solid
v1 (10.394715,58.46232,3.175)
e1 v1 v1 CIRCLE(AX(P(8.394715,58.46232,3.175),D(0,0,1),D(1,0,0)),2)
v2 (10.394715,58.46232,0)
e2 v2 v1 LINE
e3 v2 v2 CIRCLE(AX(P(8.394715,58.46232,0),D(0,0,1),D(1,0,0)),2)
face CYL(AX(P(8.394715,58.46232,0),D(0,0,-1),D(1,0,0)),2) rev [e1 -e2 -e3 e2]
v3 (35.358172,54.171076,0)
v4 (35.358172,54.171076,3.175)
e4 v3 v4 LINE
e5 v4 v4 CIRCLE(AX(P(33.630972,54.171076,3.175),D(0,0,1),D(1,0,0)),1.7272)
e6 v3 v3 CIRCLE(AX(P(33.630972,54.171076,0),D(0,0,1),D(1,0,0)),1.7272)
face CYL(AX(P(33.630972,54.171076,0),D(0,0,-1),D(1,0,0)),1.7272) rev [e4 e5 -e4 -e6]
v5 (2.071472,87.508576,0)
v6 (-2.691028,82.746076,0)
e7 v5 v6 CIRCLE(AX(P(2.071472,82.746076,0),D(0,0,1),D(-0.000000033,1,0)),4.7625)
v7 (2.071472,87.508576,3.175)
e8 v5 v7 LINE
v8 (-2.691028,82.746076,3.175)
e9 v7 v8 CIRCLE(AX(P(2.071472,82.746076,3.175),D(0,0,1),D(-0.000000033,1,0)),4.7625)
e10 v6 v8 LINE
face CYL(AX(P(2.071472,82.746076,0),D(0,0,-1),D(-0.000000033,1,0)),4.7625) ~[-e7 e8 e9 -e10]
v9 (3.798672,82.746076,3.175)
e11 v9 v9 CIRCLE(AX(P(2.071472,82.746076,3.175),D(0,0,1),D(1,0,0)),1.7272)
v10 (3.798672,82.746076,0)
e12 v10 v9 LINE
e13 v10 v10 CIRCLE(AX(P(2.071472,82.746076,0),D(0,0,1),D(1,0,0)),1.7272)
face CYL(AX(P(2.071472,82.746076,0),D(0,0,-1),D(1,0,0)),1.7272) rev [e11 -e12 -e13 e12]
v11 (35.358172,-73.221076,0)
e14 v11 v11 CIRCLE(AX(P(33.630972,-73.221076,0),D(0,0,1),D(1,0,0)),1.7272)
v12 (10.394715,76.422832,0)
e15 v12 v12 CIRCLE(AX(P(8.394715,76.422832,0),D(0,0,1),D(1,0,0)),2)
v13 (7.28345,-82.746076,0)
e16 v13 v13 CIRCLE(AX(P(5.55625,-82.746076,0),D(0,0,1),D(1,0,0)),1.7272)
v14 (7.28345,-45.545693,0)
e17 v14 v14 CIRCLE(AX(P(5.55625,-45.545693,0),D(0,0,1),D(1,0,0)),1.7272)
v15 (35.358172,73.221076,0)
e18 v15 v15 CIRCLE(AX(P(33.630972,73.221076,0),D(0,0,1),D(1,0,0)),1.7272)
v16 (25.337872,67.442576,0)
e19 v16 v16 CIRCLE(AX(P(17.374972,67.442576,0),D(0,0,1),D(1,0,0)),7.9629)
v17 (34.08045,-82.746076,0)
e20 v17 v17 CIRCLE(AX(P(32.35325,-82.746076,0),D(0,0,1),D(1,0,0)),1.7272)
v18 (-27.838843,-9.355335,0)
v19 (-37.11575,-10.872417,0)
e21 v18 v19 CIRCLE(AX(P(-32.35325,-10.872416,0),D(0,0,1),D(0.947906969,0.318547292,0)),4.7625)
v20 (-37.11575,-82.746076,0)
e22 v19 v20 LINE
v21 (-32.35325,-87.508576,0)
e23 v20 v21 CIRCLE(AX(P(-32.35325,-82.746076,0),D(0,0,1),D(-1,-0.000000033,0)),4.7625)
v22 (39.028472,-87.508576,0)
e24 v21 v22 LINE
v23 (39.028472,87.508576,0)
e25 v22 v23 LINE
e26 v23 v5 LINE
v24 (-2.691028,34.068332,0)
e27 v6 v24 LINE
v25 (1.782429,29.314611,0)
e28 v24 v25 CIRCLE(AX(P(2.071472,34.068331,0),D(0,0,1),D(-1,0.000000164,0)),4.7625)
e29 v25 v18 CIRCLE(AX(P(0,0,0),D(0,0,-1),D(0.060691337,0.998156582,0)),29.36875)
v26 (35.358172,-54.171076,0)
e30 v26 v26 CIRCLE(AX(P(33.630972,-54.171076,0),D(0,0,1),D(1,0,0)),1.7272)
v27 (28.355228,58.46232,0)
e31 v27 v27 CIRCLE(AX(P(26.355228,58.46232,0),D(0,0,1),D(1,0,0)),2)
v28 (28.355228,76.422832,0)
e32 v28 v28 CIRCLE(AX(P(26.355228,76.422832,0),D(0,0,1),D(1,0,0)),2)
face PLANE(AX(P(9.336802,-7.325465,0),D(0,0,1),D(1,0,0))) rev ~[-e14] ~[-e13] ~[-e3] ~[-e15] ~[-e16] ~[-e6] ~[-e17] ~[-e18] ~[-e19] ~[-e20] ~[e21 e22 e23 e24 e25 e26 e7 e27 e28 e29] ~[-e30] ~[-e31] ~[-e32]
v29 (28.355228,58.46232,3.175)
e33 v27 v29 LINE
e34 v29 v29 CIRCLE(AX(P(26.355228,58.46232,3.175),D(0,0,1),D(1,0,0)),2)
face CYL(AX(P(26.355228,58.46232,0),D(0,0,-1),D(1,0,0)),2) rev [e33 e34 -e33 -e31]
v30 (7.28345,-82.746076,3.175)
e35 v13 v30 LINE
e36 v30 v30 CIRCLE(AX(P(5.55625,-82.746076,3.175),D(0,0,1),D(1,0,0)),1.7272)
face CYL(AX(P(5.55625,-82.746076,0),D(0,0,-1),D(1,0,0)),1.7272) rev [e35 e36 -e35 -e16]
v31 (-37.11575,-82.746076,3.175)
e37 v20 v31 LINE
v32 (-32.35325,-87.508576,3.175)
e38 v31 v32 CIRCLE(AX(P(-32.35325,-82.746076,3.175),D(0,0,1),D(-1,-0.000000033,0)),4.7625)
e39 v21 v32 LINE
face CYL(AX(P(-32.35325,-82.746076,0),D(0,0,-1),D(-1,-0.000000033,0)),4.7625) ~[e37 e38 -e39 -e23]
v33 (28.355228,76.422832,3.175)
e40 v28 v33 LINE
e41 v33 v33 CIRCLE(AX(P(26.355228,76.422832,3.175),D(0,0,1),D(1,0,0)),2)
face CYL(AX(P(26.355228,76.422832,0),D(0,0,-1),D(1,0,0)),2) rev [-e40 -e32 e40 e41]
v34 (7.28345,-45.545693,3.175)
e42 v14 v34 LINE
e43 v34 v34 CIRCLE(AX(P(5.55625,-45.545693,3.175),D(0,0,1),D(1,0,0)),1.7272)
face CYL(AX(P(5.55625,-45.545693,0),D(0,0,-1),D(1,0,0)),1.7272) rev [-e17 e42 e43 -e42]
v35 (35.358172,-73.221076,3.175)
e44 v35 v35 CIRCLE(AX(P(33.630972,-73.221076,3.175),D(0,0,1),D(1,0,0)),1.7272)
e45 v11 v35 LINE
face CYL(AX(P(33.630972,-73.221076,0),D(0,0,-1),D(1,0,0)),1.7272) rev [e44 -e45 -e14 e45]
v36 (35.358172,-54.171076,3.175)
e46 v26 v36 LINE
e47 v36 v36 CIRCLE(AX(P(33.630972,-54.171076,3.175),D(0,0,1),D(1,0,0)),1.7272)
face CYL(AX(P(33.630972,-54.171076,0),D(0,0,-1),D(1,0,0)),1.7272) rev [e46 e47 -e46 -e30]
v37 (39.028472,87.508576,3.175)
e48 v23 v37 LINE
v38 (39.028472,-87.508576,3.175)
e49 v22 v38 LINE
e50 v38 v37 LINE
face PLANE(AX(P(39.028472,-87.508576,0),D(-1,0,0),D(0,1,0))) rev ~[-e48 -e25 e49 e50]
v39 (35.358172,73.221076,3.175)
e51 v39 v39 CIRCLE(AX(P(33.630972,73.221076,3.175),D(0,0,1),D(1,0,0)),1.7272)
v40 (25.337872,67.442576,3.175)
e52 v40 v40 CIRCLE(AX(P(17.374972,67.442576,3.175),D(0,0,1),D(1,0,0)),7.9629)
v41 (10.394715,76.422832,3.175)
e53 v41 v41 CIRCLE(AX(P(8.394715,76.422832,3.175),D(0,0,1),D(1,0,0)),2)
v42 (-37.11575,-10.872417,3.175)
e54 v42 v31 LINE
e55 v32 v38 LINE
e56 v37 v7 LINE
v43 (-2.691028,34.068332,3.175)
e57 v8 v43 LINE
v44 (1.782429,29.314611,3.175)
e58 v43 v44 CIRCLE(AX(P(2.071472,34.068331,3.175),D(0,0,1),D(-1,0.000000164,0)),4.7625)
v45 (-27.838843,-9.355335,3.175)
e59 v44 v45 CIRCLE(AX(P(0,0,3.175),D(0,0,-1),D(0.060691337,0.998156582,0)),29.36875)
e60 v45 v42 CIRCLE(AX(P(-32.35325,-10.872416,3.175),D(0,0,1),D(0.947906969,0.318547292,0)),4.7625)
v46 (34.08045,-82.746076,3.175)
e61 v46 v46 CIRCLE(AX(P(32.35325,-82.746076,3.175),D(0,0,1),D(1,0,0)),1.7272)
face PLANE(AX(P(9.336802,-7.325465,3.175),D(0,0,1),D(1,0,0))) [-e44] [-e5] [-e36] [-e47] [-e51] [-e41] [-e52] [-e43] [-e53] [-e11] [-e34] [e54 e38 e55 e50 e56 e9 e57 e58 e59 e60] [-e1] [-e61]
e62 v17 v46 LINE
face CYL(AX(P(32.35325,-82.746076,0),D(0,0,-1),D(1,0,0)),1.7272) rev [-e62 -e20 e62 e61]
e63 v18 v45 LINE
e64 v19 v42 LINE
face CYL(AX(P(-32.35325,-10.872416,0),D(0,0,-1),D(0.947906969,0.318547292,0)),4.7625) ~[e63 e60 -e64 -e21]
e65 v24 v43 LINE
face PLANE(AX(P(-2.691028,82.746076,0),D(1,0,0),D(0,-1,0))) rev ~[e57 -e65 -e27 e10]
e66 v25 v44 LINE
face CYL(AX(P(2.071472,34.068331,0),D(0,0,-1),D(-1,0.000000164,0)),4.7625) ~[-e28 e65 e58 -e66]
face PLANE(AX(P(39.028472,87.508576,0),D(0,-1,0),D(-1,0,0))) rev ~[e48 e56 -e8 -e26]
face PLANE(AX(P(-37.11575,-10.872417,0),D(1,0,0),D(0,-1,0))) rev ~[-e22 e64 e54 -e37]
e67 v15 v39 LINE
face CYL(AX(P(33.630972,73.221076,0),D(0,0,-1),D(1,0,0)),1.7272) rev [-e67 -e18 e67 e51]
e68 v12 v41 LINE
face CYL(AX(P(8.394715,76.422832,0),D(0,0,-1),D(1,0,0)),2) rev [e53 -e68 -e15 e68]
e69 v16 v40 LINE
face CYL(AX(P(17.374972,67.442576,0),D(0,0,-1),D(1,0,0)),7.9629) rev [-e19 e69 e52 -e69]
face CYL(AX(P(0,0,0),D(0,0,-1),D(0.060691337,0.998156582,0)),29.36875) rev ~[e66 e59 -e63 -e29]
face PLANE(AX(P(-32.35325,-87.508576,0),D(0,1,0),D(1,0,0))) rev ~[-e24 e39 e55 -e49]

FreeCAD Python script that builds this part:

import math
import FreeCAD as App
import Part
import Sketcher
Q = App.Units.Quantity

doc = App.newDocument("Part")
body = doc.addObject("PartDesign::Body", "Body")

# Sketch on XY plane
sketch1 = body.newObject("Sketcher::SketchObject", "Sketch")
sketch1.AttachmentSupport = (doc.getObject("XY_Plane"), [""])
sketch1.MapMode = "FlatFace"
sketch1.addGeometry(Part.LineSegment(App.Vector(-32.4, -87.5, 0), App.Vector(39, -87.5, 0)), False)
sketch1.addGeometry(Part.LineSegment(App.Vector(39, -87.5, 0), App.Vector(39, 87.5, 0)), False)
sketch1.addGeometry(Part.LineSegment(App.Vector(39, 87.5, 0), App.Vector(2.1, 87.5, 0)), False)
sketch1.addGeometry(Part.ArcOfCircle(Part.Circle(App.Vector(2.1, 82.7, 0), App.Vector(0, 0, 1), 4.8), math.radians(90), math.radians(180)), False)
sketch1.addGeometry(Part.LineSegment(App.Vector(-2.7, 82.7, 0), App.Vector(-2.7, 34.1, 0)), False)
sketch1.addGeometry(Part.ArcOfCircle(Part.Circle(App.Vector(2.1, 34.1, 0), App.Vector(0, 0, 1), 4.8), math.radians(180), math.radians(267)), False)
sketch1.addGeometry(Part.ArcOfCircle(Part.Circle(App.Vector(0, 0, 0), App.Vector(0, 0, 1), 29.4), math.radians(-161), math.radians(87)), False)
sketch1.addGeometry(Part.ArcOfCircle(Part.Circle(App.Vector(-32.4, -10.9, 0), App.Vector(0, 0, 1), 4.8), math.radians(19), math.radians(180)), False)
sketch1.addGeometry(Part.LineSegment(App.Vector(-37.1, -10.9, 0), App.Vector(-37.1, -82.7, 0)), False)
sketch1.addGeometry(Part.ArcOfCircle(Part.Circle(App.Vector(-32.4, -82.7, 0), App.Vector(0, 0, 1), 4.8), math.radians(-180), math.radians(-90)), False)
sketch1.addGeometry(Part.Circle(App.Vector(5.6, -82.7, 0), App.Vector(0, 0, 1), 1.7), False)
sketch1.addGeometry(Part.Circle(App.Vector(5.6, -45.5, 0), App.Vector(0, 0, 1), 1.7), False)
sketch1.addGeometry(Part.Circle(App.Vector(32.4, -82.7, 0), App.Vector(0, 0, 1), 1.7), False)
sketch1.addGeometry(Part.Circle(App.Vector(33.6, -73.2, 0), App.Vector(0, 0, 1), 1.7), False)
sketch1.addGeometry(Part.Circle(App.Vector(33.6, -54.2, 0), App.Vector(0, 0, 1), 1.7), False)
sketch1.addGeometry(Part.Circle(App.Vector(8.4, 58.5, 0), App.Vector(0, 0, 1), 2), False)
sketch1.addGeometry(Part.Circle(App.Vector(2.1, 82.7, 0), App.Vector(0, 0, 1), 1.7), False)
sketch1.addGeometry(Part.Circle(App.Vector(8.4, 76.4, 0), App.Vector(0, 0, 1), 2), False)
sketch1.addGeometry(Part.Circle(App.Vector(17.4, 67.4, 0), App.Vector(0, 0, 1), 8), False)
sketch1.addGeometry(Part.Circle(App.Vector(26.4, 58.5, 0), App.Vector(0, 0, 1), 2), False)
sketch1.addGeometry(Part.Circle(App.Vector(26.4, 76.4, 0), App.Vector(0, 0, 1), 2), False)
sketch1.addGeometry(Part.Circle(App.Vector(33.6, 54.2, 0), App.Vector(0, 0, 1), 1.7), False)
sketch1.addGeometry(Part.Circle(App.Vector(33.6, 73.2, 0), App.Vector(0, 0, 1), 1.7), False)
sketch1.addConstraint(Sketcher.Constraint("Coincident", 0, 2, 1, 1))
sketch1.addConstraint(Sketcher.Constraint("Coincident", 1, 2, 2, 1))
sketch1.addConstraint(Sketcher.Constraint("Tangent", 2, 2, 3, 1))
sketch1.addConstraint(Sketcher.Constraint("Tangent", 3, 2, 4, 1))
sketch1.addConstraint(Sketcher.Constraint("Tangent", 4, 2, 5, 1))
sketch1.addConstraint(Sketcher.Constraint("Tangent", 5, 2, 6, 2))
sketch1.addConstraint(Sketcher.Constraint("Tangent", 6, 1, 7, 1))
sketch1.addConstraint(Sketcher.Constraint("Tangent", 7, 2, 8, 1))
sketch1.addConstraint(Sketcher.Constraint("Tangent", 8, 2, 9, 1))
sketch1.addConstraint(Sketcher.Constraint("Tangent", 9, 2, 0, 1))
sketch1.addConstraint(Sketcher.Constraint("Horizontal", 0))
sketch1.addConstraint(Sketcher.Constraint("Vertical", 1))
sketch1.addConstraint(Sketcher.Constraint("Horizontal", 2))
sketch1.addConstraint(Sketcher.Constraint("Vertical", 4))
sketch1.addConstraint(Sketcher.Constraint("Vertical", 8))
sketch1.addConstraint(Sketcher.Constraint("Coincident", 6, 3, -1, 1))
sketch1.addConstraint(Sketcher.Constraint("Coincident", 16, 3, 3, 3))
sketch1.addConstraint(Sketcher.Constraint("Equal", 3, 5))
sketch1.addConstraint(Sketcher.Constraint("Equal", 5, 7))
sketch1.addConstraint(Sketcher.Constraint("Equal", 7, 9))
sketch1.addConstraint(Sketcher.Constraint("Equal", 10, 11))
sketch1.addConstraint(Sketcher.Constraint("Equal", 11, 12))
sketch1.addConstraint(Sketcher.Constraint("Equal", 12, 13))
sketch1.addConstraint(Sketcher.Constraint("Equal", 13, 14))
sketch1.addConstraint(Sketcher.Constraint("Equal", 14, 16))
sketch1.addConstraint(Sketcher.Constraint("Equal", 15, 17))
sketch1.addConstraint(Sketcher.Constraint("Equal", 17, 19))
sketch1.addConstraint(Sketcher.Constraint("Equal", 19, 20))
sketch1.addConstraint(Sketcher.Constraint("Equal", 16, 21))
sketch1.addConstraint(Sketcher.Constraint("Equal", 21, 22))
sketch1.addConstraint(Sketcher.Constraint("Symmetric", 9, 3, 12, 3, -2))
sketch1.addConstraint(Sketcher.Constraint("Symmetric", 14, 3, 21, 3, -1))
sketch1.addConstraint(Sketcher.Constraint("Symmetric", 13, 3, 22, 3, -1))
sketch1.addConstraint(Sketcher.Constraint("Horizontal", 9, 3, 10, 3))
sketch1.addConstraint(Sketcher.Constraint("Horizontal", 15, 3, 19, 3))
sketch1.addConstraint(Sketcher.Constraint("Horizontal", 17, 3, 20, 3))
sketch1.addConstraint(Sketcher.Constraint("Vertical", 10, 3, 11, 3))
sketch1.addConstraint(Sketcher.Constraint("Vertical", 13, 3, 14, 3))
sketch1.addConstraint(Sketcher.Constraint("Vertical", 15, 3, 17, 3))
sketch1.addConstraint(Sketcher.Constraint("Vertical", 19, 3, 20, 3))
sketch1.addConstraint(Sketcher.Constraint("Diameter", 10, Q("0.136 in")))
sketch1.addConstraint(Sketcher.Constraint("Diameter", 18, Q("0.627 in")))
sketch1.addConstraint(Sketcher.Constraint("Radius", 3, Q("0.1875 in")))
sketch1.addConstraint(Sketcher.Constraint("Radius", 6, Q("1.15625 in")))
sketch1.addConstraint(Sketcher.Constraint("Diameter", 15, Q("4 mm")))
sketch1.addConstraint(Sketcher.Constraint("DistanceX", 2, 2, 2, 1, Q("1.455 in")))
sketch1.addConstraint(Sketcher.Constraint("DistanceY", 13, 3, 14, 3, Q("0.75 in")))
sketch1.addConstraint(Sketcher.Constraint("DistanceX", 18, 3, 21, 3, Q("0.64 in")))
sketch1.addConstraint(Sketcher.Constraint("DistanceY", 18, 3, 1, 2, Q("0.79 in")))
sketch1.addConstraint(Sketcher.Constraint("DistanceX", 3, 2, 18, 3, Q("0.79 in")))
sketch1.addConstraint(Sketcher.Constraint("DistanceX", 7, 2, 11, 3, Q("1.68 in")))
sketch1.addConstraint(Sketcher.Constraint("DistanceX", -1, 1, 10, 3, Q("0.21875 in")))
sketch1.addConstraint(Sketcher.Constraint("DistanceY", 12, 3, 13, 3, Q("0.375 in")))
sketch1.addConstraint(Sketcher.Constraint("DistanceY", 22, 3, 1, 2, Q("0.5625 in")))
sketch1.addConstraint(Sketcher.Constraint("DistanceY", 5, 3, 17, 3, Q("1.6675 in")))
sketch1.addConstraint(Sketcher.Constraint("DistanceX", 0, 1, 0, 2, Q("71.381722 mm")))
sketch1.addConstraint(Sketcher.Constraint("DistanceY", 8, 2, 8, 1, Q("71.873659 mm")))
sketch1.addConstraint(Sketcher.Constraint("DistanceX", 5, 2, 19, 3, Q("24.572799 mm")))
sketch1.addConstraint(Sketcher.Constraint("DistanceY", -1, 1, 15, 3, Q("58.46232 mm")))
sketch1.addConstraint(Sketcher.Constraint("DistanceY", 11, 3, 6, 1, Q("36.190358 mm")))
sketch1.addConstraint(Sketcher.Constraint("DistanceX", -1, 1, 15, 3, Q("8.394715 mm")))
pad1 = body.newObject("PartDesign::Pad", "Pad")
pad1.Profile = sketch1
pad1.Length = Q("0.125 in")

doc.recompute()
